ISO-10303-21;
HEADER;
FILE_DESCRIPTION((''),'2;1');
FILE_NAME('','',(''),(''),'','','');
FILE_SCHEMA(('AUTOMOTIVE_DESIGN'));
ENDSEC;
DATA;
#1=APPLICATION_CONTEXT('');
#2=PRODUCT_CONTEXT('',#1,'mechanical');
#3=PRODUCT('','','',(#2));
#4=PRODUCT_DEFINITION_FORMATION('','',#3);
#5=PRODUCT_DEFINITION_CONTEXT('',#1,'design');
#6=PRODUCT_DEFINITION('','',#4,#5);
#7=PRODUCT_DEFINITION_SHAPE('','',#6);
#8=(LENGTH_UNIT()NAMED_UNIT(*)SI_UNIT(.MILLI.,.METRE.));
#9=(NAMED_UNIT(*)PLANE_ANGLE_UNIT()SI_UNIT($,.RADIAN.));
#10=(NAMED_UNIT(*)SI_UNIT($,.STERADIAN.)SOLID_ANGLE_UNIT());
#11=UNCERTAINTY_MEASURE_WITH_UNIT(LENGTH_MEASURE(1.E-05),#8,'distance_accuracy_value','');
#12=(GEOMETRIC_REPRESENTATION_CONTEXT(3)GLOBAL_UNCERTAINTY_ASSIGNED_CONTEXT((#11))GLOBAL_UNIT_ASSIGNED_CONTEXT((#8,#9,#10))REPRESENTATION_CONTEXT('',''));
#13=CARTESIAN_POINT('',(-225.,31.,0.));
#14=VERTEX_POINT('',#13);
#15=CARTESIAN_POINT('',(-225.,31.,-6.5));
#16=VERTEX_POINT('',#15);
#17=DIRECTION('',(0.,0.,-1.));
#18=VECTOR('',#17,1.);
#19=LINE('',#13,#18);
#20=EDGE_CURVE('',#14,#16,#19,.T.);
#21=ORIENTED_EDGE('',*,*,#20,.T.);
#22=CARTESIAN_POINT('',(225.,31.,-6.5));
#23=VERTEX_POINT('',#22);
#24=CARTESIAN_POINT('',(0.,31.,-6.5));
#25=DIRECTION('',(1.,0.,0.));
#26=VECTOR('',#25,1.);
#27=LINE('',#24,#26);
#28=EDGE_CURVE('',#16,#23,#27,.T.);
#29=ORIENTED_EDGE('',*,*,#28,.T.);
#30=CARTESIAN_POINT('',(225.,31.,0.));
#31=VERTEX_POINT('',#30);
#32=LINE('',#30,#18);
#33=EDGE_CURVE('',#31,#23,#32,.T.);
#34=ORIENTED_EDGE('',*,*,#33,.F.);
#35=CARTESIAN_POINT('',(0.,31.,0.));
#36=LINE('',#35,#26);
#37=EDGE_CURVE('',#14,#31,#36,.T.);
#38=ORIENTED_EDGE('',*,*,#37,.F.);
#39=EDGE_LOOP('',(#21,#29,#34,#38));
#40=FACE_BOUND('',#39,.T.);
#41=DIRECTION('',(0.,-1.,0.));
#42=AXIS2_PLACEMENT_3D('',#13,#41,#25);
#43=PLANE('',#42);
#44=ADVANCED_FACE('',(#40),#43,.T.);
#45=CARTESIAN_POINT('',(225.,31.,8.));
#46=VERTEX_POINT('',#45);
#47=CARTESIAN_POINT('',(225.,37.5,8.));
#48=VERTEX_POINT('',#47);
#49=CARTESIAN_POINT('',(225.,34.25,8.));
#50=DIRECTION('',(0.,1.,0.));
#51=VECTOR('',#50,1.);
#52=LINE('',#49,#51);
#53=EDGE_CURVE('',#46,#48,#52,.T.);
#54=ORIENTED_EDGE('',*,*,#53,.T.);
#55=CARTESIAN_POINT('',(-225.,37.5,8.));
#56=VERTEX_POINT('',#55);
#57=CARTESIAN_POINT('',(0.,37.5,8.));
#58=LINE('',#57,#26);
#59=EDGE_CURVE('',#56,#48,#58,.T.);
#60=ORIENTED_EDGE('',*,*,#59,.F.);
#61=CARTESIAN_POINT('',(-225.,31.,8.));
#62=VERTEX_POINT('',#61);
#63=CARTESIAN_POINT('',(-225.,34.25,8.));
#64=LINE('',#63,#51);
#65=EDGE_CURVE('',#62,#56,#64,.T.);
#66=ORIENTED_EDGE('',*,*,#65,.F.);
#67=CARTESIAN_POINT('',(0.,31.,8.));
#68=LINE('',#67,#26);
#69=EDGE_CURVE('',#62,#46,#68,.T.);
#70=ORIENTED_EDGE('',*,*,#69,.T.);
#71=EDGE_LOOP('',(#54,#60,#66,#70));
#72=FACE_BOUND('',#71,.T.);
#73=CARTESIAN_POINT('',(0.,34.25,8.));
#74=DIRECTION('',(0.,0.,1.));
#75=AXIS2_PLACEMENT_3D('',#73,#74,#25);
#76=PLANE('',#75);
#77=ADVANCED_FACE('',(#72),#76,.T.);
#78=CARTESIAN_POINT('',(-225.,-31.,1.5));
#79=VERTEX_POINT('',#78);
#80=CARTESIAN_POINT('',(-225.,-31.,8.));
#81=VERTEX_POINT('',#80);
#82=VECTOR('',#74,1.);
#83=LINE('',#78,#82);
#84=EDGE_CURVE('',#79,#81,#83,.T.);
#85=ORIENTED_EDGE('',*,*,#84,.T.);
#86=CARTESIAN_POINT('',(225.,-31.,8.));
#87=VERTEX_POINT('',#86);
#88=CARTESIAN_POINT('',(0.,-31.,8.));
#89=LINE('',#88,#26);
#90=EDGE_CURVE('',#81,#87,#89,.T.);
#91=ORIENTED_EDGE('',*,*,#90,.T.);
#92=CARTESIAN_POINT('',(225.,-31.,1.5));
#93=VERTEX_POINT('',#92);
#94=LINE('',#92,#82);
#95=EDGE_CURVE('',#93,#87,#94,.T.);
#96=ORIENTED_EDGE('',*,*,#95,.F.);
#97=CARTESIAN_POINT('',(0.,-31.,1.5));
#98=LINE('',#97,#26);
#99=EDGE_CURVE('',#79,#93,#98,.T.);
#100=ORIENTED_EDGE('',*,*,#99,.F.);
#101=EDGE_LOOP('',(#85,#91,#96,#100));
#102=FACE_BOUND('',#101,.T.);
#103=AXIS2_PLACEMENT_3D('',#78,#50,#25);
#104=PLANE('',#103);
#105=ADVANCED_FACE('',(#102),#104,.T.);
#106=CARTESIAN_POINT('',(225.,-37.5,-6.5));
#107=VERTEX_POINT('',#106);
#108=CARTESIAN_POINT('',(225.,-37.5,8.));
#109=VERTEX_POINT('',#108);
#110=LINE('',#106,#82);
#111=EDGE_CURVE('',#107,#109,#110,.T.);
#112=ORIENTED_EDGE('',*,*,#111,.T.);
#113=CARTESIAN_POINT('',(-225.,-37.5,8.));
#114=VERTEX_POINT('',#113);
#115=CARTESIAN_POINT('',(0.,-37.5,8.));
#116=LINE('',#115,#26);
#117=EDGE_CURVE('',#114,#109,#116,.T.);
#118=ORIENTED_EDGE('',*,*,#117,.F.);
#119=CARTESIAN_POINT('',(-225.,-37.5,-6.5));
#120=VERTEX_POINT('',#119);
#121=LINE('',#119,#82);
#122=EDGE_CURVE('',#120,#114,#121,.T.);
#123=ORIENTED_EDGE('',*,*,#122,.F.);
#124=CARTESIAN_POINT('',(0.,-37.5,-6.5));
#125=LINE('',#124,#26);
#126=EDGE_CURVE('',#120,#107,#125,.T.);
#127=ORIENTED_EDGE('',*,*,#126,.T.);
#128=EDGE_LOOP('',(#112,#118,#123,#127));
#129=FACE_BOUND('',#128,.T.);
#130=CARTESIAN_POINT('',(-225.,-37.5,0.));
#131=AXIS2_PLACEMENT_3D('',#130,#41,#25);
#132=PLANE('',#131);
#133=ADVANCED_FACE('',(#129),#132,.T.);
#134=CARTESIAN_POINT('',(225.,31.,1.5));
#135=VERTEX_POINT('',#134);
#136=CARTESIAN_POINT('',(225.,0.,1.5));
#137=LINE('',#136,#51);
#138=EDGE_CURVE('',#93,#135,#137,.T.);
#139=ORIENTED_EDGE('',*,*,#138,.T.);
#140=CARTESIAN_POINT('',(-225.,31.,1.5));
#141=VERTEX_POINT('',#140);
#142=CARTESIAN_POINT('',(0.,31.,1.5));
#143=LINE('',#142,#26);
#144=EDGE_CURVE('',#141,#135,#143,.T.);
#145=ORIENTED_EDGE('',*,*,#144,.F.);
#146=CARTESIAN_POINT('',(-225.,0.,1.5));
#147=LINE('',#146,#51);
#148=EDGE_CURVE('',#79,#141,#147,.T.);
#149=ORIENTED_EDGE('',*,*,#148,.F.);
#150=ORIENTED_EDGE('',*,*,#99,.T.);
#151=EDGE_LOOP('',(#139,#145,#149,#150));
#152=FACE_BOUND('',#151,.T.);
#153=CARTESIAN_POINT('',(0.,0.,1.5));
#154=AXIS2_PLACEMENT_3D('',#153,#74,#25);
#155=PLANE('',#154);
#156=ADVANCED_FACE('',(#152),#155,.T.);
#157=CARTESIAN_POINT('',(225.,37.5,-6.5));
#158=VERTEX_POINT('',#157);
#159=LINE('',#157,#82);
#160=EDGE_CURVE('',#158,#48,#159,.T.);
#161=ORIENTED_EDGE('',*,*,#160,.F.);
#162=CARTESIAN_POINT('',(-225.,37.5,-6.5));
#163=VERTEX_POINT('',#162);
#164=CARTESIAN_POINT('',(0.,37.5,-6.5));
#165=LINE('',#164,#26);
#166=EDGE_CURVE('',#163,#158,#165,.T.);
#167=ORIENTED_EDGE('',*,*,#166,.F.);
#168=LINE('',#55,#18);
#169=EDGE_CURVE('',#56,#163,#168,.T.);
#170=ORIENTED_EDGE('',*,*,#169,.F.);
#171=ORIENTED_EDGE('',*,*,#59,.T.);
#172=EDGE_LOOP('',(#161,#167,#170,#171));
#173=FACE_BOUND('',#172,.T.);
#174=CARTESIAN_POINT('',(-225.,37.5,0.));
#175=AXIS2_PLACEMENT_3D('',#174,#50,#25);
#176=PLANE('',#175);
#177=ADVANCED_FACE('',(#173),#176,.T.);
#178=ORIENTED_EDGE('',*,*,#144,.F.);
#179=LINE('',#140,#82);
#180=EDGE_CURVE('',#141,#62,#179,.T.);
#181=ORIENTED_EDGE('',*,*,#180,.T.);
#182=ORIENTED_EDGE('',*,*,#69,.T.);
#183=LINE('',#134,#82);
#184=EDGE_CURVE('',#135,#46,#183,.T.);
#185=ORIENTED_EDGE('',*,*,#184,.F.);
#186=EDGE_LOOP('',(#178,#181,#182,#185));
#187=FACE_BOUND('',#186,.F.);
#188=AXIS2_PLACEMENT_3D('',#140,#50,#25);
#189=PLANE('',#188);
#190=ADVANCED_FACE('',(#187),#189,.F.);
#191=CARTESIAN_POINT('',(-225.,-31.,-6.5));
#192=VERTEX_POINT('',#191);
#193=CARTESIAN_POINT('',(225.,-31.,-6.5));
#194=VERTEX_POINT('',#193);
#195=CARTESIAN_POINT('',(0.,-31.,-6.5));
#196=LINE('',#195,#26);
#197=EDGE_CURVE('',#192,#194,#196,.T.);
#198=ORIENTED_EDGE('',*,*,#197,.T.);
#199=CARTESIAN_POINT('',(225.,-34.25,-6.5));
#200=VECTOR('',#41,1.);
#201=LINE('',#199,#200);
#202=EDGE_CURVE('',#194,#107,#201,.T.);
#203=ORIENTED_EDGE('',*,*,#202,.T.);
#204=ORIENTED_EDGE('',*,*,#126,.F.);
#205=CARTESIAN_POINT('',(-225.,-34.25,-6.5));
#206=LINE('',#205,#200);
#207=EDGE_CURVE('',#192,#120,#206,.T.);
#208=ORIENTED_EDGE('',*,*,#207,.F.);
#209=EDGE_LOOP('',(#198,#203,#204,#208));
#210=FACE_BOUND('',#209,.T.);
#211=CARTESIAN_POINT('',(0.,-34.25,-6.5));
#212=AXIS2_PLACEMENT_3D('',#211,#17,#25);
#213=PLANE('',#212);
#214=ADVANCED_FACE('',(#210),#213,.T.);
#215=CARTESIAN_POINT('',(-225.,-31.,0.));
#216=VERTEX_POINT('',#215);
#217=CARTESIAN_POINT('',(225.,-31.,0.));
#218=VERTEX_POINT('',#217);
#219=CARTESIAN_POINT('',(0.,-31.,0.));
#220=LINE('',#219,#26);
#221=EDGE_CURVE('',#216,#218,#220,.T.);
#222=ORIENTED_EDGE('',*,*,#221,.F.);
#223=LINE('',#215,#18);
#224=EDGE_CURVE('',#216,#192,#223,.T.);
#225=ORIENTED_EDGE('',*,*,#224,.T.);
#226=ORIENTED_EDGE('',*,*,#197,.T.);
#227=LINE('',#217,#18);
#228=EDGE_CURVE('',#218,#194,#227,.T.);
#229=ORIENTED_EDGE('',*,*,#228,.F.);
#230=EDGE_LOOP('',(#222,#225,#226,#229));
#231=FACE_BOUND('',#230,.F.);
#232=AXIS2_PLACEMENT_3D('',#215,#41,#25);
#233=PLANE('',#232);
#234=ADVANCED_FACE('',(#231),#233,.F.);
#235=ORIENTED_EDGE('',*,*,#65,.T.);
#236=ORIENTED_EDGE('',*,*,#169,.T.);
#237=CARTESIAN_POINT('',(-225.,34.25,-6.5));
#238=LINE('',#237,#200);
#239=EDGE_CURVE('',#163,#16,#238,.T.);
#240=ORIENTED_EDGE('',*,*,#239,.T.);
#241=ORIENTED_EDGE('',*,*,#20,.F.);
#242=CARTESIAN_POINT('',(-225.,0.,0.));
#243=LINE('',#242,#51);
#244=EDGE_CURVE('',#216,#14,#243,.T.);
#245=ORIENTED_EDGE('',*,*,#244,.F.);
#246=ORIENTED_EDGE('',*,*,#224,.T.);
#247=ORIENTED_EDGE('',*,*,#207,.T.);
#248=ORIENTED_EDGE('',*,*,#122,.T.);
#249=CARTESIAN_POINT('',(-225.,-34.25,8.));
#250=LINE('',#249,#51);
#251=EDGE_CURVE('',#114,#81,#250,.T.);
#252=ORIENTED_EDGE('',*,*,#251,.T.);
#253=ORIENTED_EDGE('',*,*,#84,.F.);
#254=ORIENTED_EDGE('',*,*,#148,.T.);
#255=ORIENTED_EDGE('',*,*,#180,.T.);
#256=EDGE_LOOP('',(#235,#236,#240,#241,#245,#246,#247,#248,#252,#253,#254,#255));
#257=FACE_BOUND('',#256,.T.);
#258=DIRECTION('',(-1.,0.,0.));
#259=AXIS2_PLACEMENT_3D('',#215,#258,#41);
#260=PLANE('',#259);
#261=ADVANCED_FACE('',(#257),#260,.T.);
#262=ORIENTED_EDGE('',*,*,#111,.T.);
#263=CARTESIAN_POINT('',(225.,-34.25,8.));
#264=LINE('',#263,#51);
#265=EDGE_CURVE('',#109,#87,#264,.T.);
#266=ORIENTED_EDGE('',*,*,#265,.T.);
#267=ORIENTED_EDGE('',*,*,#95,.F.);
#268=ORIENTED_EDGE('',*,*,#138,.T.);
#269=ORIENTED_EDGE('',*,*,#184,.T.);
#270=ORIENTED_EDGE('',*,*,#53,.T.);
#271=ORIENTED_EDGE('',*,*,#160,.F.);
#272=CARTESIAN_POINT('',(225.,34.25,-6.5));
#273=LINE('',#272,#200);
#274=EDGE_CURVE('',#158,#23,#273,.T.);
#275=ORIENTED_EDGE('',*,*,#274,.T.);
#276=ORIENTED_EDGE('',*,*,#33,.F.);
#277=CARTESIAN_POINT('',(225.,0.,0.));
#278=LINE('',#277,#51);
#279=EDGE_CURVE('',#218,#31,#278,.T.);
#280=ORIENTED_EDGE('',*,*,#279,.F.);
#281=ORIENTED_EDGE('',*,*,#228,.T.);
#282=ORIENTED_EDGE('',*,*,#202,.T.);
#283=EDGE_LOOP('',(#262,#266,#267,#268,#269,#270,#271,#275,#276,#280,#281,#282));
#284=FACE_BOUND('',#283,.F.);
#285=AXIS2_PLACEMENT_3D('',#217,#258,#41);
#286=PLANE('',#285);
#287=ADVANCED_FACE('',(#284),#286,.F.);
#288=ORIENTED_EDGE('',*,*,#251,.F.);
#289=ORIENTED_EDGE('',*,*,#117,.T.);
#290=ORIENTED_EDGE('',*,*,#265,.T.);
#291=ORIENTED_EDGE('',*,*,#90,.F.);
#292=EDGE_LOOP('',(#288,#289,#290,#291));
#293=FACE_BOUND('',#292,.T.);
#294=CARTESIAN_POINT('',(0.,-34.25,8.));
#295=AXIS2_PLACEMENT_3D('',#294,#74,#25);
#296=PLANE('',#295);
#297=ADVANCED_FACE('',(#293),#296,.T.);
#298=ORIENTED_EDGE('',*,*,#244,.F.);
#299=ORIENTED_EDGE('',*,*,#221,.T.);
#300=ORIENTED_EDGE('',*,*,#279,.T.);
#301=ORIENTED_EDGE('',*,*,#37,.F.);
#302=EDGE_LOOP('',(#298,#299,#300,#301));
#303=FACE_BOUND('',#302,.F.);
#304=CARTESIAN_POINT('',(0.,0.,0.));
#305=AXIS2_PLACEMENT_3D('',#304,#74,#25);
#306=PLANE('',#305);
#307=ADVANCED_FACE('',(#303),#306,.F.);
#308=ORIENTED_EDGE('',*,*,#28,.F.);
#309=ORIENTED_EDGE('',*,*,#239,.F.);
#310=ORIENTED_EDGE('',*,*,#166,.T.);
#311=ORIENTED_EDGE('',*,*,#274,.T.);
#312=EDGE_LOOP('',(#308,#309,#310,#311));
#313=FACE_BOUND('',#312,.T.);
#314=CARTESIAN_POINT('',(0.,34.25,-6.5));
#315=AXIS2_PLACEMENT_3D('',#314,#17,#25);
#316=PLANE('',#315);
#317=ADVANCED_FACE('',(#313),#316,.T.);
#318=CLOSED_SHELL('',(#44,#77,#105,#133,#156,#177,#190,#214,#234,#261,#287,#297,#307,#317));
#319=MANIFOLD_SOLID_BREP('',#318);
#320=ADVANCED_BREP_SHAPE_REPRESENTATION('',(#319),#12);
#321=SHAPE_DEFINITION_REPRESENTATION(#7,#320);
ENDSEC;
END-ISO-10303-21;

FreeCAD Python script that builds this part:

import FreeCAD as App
import Part
import Sketcher
from FreeCAD import Vector


def add_polygon(sketch, points):
    """Adds a closed chain of lines whose ends are joined by coincident constraints."""
    first, n = sketch.GeometryCount, len(points)
    for a, b in zip(points, points[1:] + points[:1]):
        sketch.addGeometry(Part.LineSegment(App.Vector(*a, 0), App.Vector(*b, 0)), False)
    for i in range(n):
        sketch.addConstraint(Sketcher.Constraint("Coincident", first + i, 2, first + (i + 1) % n, 1))

doc = App.newDocument("Part")
body = doc.addObject("PartDesign::Body", "Body")

# Sketch on XY plane
sketch1 = body.newObject("Sketcher::SketchObject", "Sketch")
sketch1.AttachmentSupport = (doc.getObject("XY_Plane"), [""])
sketch1.MapMode = "FlatFace"
add_polygon(sketch1, [(-225, 38), (-225, -38), (225, -38), (225, 38)])  # lines 0-3
sketch1.addConstraint([
    Sketcher.Constraint("Vertical", 0),
    Sketcher.Constraint("Horizontal", 1),
    Sketcher.Constraint("Vertical", 2),
    Sketcher.Constraint("Horizontal", 3),
    Sketcher.Constraint("Symmetric", 0, 2, 2, 2, -1, 1),
    Sketcher.Constraint("DistanceX", 1, 1, 1, 2, 450.0),
    Sketcher.Constraint("DistanceY", 0, 2, 0, 1, 75.0),
])
pad1 = body.newObject("PartDesign::Pad", "Pad")
pad1.Profile = sketch1
pad1.Length = 1.5

# Sketch on XY plane
sketch2 = body.newObject("Sketcher::SketchObject", "Sketch001")
sketch2.AttachmentSupport = (doc.getObject("XY_Plane"), [""])
sketch2.MapMode = "FlatFace"
sketch2.AttachmentOffset = App.Placement(Vector(0, 0, 1.5), App.Rotation())
add_polygon(sketch2, [(-225, -31), (-225, -38), (225, -38), (225, -31)])  # lines 0-3
add_polygon(sketch2, [(-225, 38), (-225, 31), (225, 31), (225, 38)])  # lines 4-7
sketch2.addConstraint([
    Sketcher.Constraint("Vertical", 0),
    Sketcher.Constraint("Horizontal", 1),
    Sketcher.Constraint("Vertical", 2),
    Sketcher.Constraint("Horizontal", 3),
    Sketcher.Constraint("Vertical", 4),
    Sketcher.Constraint("Horizontal", 5),
    Sketcher.Constraint("Vertical", 6),
    Sketcher.Constraint("Horizontal", 7),
    Sketcher.Constraint("Symmetric", 2, 2, 4, 2, -1, 1),
    Sketcher.Constraint("Symmetric", 0, 2, 6, 2, -1, 1),
    Sketcher.Constraint("Vertical", 3, 2, 4, 2),
    Sketcher.Constraint("DistanceX", 1, 1, 1, 2, 450.0),
    Sketcher.Constraint("DistanceY", 0, 2, 0, 1, 6.5),
    Sketcher.Constraint("DistanceY", 2, 2, -1, 1, 31.0),
])
pad2 = body.newObject("PartDesign::Pad", "Pad001")
pad2.Profile = sketch2
pad2.Length = 6.5

# Sketch on XY plane
sketch3 = body.newObject("Sketcher::SketchObject", "Sketch002")
sketch3.AttachmentSupport = (doc.getObject("XY_Plane"), [""])
sketch3.MapMode = "FlatFace"
add_polygon(sketch3, [(-225, -38), (-225, -31), (225, -31), (225, -38)])  # lines 0-3
add_polygon(sketch3, [(-225, 31), (-225, 38), (225, 38), (225, 31)])  # lines 4-7
sketch3.addConstraint([
    Sketcher.Constraint("Vertical", 0),
    Sketcher.Constraint("Horizontal", 1),
    Sketcher.Constraint("Vertical", 2),
    Sketcher.Constraint("Horizontal", 3),
    Sketcher.Constraint("Vertical", 4),
    Sketcher.Constraint("Horizontal", 5),
    Sketcher.Constraint("Vertical", 6),
    Sketcher.Constraint("Horizontal", 7),
    Sketcher.Constraint("Symmetric", 2, 2, 4, 2, -1, 1),
    Sketcher.Constraint("Symmetric", 0, 2, 6, 2, -1, 1),
    Sketcher.Constraint("Vertical", 3, 2, 4, 2),
    Sketcher.Constraint("DistanceX", 1, 1, 1, 2, 450.0),
    Sketcher.Constraint("DistanceY", 0, 1, 0, 2, 6.5),
    Sketcher.Constraint("DistanceY", 0, 2, -1, 1, 31.0),
])
pad3 = body.newObject("PartDesign::Pad", "Pad002")
pad3.Profile = sketch3
pad3.Length = 6.5
pad3.Reversed = True

doc.recompute()
